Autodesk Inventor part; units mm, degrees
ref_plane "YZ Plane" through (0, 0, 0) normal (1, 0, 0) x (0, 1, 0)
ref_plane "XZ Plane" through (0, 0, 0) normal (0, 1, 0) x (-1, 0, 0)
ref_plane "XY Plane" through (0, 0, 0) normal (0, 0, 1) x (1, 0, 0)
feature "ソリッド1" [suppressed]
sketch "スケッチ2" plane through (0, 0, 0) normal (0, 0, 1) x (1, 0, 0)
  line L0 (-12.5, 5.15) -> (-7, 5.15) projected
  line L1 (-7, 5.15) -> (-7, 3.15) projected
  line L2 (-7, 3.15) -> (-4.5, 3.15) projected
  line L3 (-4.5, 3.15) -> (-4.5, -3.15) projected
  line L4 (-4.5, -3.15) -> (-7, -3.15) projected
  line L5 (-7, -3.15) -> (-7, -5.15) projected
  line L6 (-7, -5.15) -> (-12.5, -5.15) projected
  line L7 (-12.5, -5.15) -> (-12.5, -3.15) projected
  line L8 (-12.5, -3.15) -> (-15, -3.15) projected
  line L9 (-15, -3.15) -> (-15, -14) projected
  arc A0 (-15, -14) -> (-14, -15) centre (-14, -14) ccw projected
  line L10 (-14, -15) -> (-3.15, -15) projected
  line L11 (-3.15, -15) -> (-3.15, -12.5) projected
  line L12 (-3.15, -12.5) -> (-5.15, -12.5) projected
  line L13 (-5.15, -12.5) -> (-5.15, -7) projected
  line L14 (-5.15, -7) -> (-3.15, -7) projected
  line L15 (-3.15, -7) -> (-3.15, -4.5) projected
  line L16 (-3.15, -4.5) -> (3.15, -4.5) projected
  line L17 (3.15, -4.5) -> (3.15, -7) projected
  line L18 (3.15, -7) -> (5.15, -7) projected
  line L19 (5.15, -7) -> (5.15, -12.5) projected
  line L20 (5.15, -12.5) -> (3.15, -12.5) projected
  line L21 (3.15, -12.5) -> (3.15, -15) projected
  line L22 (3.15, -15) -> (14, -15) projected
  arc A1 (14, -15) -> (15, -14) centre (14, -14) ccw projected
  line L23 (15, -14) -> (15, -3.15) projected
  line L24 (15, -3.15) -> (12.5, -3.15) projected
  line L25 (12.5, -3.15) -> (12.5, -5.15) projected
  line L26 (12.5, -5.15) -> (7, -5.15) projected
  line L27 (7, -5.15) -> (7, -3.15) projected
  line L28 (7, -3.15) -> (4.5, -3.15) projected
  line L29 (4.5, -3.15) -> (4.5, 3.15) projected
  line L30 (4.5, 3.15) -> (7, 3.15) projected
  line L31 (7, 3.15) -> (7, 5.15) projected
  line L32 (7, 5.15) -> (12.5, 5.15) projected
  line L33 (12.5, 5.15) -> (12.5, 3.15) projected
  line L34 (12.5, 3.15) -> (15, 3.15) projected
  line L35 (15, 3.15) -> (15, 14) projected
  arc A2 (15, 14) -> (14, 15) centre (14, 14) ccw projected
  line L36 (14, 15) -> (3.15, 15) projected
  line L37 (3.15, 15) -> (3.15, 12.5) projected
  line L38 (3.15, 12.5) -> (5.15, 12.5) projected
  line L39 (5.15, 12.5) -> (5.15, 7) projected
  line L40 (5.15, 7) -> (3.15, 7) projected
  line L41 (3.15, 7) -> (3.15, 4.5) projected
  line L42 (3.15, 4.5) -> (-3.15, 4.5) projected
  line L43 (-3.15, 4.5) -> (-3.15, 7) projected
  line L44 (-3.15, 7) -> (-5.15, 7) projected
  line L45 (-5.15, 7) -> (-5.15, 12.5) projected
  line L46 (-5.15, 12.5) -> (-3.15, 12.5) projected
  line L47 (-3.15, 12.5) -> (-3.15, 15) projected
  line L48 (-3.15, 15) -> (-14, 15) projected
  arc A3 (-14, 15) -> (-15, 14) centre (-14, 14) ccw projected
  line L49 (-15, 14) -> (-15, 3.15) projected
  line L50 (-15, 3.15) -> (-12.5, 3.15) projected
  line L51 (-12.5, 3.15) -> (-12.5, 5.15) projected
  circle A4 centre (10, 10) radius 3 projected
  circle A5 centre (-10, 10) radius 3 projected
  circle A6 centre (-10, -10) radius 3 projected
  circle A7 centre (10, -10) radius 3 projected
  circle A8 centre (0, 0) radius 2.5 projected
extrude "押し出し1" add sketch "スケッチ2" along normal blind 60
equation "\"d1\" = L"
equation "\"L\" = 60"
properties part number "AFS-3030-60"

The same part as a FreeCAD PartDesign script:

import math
import FreeCAD as App
import Part
import Sketcher

doc = App.newDocument("Part")
params = doc.addObject("Spreadsheet::Sheet", "Params")
for row, (alias, value) in enumerate([
    ("sketch1_diameter", "6 mm"),
    ("sketch1_diameter2", "5 mm"),
    ("sketch1_radius", "1 mm"),
    ("sketch1_width", "2 mm"),
    ("sketch1_width2", "5.5 mm"),
    ("pad1_length", "60 mm"),
], start=1):
    params.set(f"A{row}", alias)
    params.set(f"B{row}", "=" + value)
    params.setAlias(f"B{row}", alias)

body = doc.addObject("PartDesign::Body", "Body")

sketch1 = body.newObject("Sketcher::SketchObject", "Sketch")
sketch1.AttachmentSupport = (doc.getObject("XY_Plane"), [""])
sketch1.MapMode = "FlatFace"
sketch1.addGeometry(Part.LineSegment(App.Vector(-12.5, 3.1, 0), App.Vector(-12.5, 5.2, 0)), False)
sketch1.addGeometry(Part.LineSegment(App.Vector(-12.5, 5.2, 0), App.Vector(-7, 5.2, 0)), False)
sketch1.addGeometry(Part.LineSegment(App.Vector(-7, 5.2, 0), App.Vector(-7, 3.1, 0)), False)
sketch1.addGeometry(Part.LineSegment(App.Vector(-7, 3.1, 0), App.Vector(-4.5, 3.1, 0)), False)
sketch1.addGeometry(Part.LineSegment(App.Vector(-4.5, 3.1, 0), App.Vector(-4.5, -3.1, 0)), False)
sketch1.addGeometry(Part.LineSegment(App.Vector(-4.5, -3.1, 0), App.Vector(-7, -3.1, 0)), False)
sketch1.addGeometry(Part.LineSegment(App.Vector(-7, -3.1, 0), App.Vector(-7, -5.2, 0)), False)
sketch1.addGeometry(Part.LineSegment(App.Vector(-7, -5.2, 0), App.Vector(-12.5, -5.2, 0)), False)
sketch1.addGeometry(Part.LineSegment(App.Vector(-12.5, -5.2, 0), App.Vector(-12.5, -3.1, 0)), False)
sketch1.addGeometry(Part.LineSegment(App.Vector(-12.5, -3.1, 0), App.Vector(-15, -3.1, 0)), False)
sketch1.addGeometry(Part.LineSegment(App.Vector(-15, -3.1, 0), App.Vector(-15, -14, 0)), False)
sketch1.addGeometry(Part.ArcOfCircle(Part.Circle(App.Vector(-14, -14, 0), App.Vector(0, 0, 1), 1), math.radians(180), math.radians(270)), False)
sketch1.addGeometry(Part.LineSegment(App.Vector(-14, -15, 0), App.Vector(-3.1, -15, 0)), False)
sketch1.addGeometry(Part.LineSegment(App.Vector(-3.1, -15, 0), App.Vector(-3.1, -12.5, 0)), False)
sketch1.addGeometry(Part.LineSegment(App.Vector(-3.1, -12.5, 0), App.Vector(-5.2, -12.5, 0)), False)
sketch1.addGeometry(Part.LineSegment(App.Vector(-5.2, -12.5, 0), App.Vector(-5.2, -7, 0)), False)
sketch1.addGeometry(Part.LineSegment(App.Vector(-5.2, -7, 0), App.Vector(-3.1, -7, 0)), False)
sketch1.addGeometry(Part.LineSegment(App.Vector(-3.1, -7, 0), App.Vector(-3.1, -4.5, 0)), False)
sketch1.addGeometry(Part.LineSegment(App.Vector(-3.1, -4.5, 0), App.Vector(3.1, -4.5, 0)), False)
sketch1.addGeometry(Part.LineSegment(App.Vector(3.1, -4.5, 0), App.Vector(3.1, -7, 0)), False)
sketch1.addGeometry(Part.LineSegment(App.Vector(3.1, -7, 0), App.Vector(5.2, -7, 0)), False)
sketch1.addGeometry(Part.LineSegment(App.Vector(5.2, -7, 0), App.Vector(5.2, -12.5, 0)), False)
sketch1.addGeometry(Part.LineSegment(App.Vector(5.2, -12.5, 0), App.Vector(3.1, -12.5, 0)), False)
sketch1.addGeometry(Part.LineSegment(App.Vector(3.1, -12.5, 0), App.Vector(3.1, -15, 0)), False)
sketch1.addGeometry(Part.LineSegment(App.Vector(3.1, -15, 0), App.Vector(14, -15, 0)), False)
sketch1.addGeometry(Part.ArcOfCircle(Part.Circle(App.Vector(14, -14, 0), App.Vector(0, 0, 1), 1), math.radians(-90), math.radians(0)), False)
sketch1.addGeometry(Part.LineSegment(App.Vector(15, -14, 0), App.Vector(15, -3.1, 0)), False)
sketch1.addGeometry(Part.LineSegment(App.Vector(15, -3.1, 0), App.Vector(12.5, -3.1, 0)), False)
sketch1.addGeometry(Part.LineSegment(App.Vector(12.5, -3.1, 0), App.Vector(12.5, -5.2, 0)), False)
sketch1.addGeometry(Part.LineSegment(App.Vector(12.5, -5.2, 0), App.Vector(7, -5.2, 0)), False)
sketch1.addGeometry(Part.LineSegment(App.Vector(7, -5.2, 0), App.Vector(7, -3.1, 0)), False)
sketch1.addGeometry(Part.LineSegment(App.Vector(7, -3.1, 0), App.Vector(4.5, -3.1, 0)), False)
sketch1.addGeometry(Part.LineSegment(App.Vector(4.5, -3.1, 0), App.Vector(4.5, 3.1, 0)), False)
sketch1.addGeometry(Part.LineSegment(App.Vector(4.5, 3.1, 0), App.Vector(7, 3.1, 0)), False)
sketch1.addGeometry(Part.LineSegment(App.Vector(7, 3.1, 0), App.Vector(7, 5.2, 0)), False)
sketch1.addGeometry(Part.LineSegment(App.Vector(7, 5.2, 0), App.Vector(12.5, 5.2, 0)), False)
sketch1.addGeometry(Part.LineSegment(App.Vector(12.5, 5.2, 0), App.Vector(12.5, 3.1, 0)), False)
sketch1.addGeometry(Part.LineSegment(App.Vector(12.5, 3.1, 0), App.Vector(15, 3.1, 0)), False)
sketch1.addGeometry(Part.LineSegment(App.Vector(15, 3.1, 0), App.Vector(15, 14, 0)), False)
sketch1.addGeometry(Part.ArcOfCircle(Part.Circle(App.Vector(14, 14, 0), App.Vector(0, 0, 1), 1), math.radians(0), math.radians(90)), False)
sketch1.addGeometry(Part.LineSegment(App.Vector(14, 15, 0), App.Vector(3.1, 15, 0)), False)
sketch1.addGeometry(Part.LineSegment(App.Vector(3.1, 15, 0), App.Vector(3.1, 12.5, 0)), False)
sketch1.addGeometry(Part.LineSegment(App.Vector(3.1, 12.5, 0), App.Vector(5.2, 12.5, 0)), False)
sketch1.addGeometry(Part.LineSegment(App.Vector(5.2, 12.5, 0), App.Vector(5.2, 7, 0)), False)
sketch1.addGeometry(Part.LineSegment(App.Vector(5.2, 7, 0), App.Vector(3.1, 7, 0)), False)
sketch1.addGeometry(Part.LineSegment(App.Vector(3.1, 7, 0), App.Vector(3.1, 4.5, 0)), False)
sketch1.addGeometry(Part.LineSegment(App.Vector(3.1, 4.5, 0), App.Vector(-3.1, 4.5, 0)), False)
sketch1.addGeometry(Part.LineSegment(App.Vector(-3.1, 4.5, 0), App.Vector(-3.1, 7, 0)), False)
sketch1.addGeometry(Part.LineSegment(App.Vector(-3.1, 7, 0), App.Vector(-5.2, 7, 0)), False)
sketch1.addGeometry(Part.LineSegment(App.Vector(-5.2, 7, 0), App.Vector(-5.2, 12.5, 0)), False)
sketch1.addGeometry(Part.LineSegment(App.Vector(-5.2, 12.5, 0), App.Vector(-3.1, 12.5, 0)), False)
sketch1.addGeometry(Part.LineSegment(App.Vector(-3.1, 12.5, 0), App.Vector(-3.1, 15, 0)), False)
sketch1.addGeometry(Part.LineSegment(App.Vector(-3.1, 15, 0), App.Vector(-14, 15, 0)), False)
sketch1.addGeometry(Part.ArcOfCircle(Part.Circle(App.Vector(-14, 14, 0), App.Vector(0, 0, 1), 1), math.radians(90), math.radians(180)), False)
sketch1.addGeometry(Part.LineSegment(App.Vector(-15, 14, 0), App.Vector(-15, 3.1, 0)), False)
sketch1.addGeometry(Part.LineSegment(App.Vector(-15, 3.1, 0), App.Vector(-12.5, 3.1, 0)), False)
sketch1.addGeometry(Part.Circle(App.Vector(-10, -10, 0), App.Vector(0, 0, 1), 3), False)
sketch1.addGeometry(Part.Circle(App.Vector(10, -10, 0), App.Vector(0, 0, 1), 3), False)
sketch1.addGeometry(Part.Circle(App.Vector(-10, 10, 0), App.Vector(0, 0, 1), 3), False)
sketch1.addGeometry(Part.Circle(App.Vector(0, 0, 0), App.Vector(0, 0, 1), 2.5), False)
sketch1.addGeometry(Part.Circle(App.Vector(10, 10, 0), App.Vector(0, 0, 1), 3), False)
sketch1.addConstraint(Sketcher.Constraint("Coincident", 0, 2, 1, 1))
sketch1.addConstraint(Sketcher.Constraint("Coincident", 1, 2, 2, 1))
sketch1.addConstraint(Sketcher.Constraint("Coincident", 2, 2, 3, 1))
sketch1.addConstraint(Sketcher.Constraint("Coincident", 3, 2, 4, 1))
sketch1.addConstraint(Sketcher.Constraint("Coincident", 4, 2, 5, 1))
sketch1.addConstraint(Sketcher.Constraint("Coincident", 5, 2, 6, 1))
sketch1.addConstraint(Sketcher.Constraint("Coincident", 6, 2, 7, 1))
sketch1.addConstraint(Sketcher.Constraint("Coincident", 7, 2, 8, 1))
sketch1.addConstraint(Sketcher.Constraint("Coincident", 8, 2, 9, 1))
sketch1.addConstraint(Sketcher.Constraint("Coincident", 9, 2, 10, 1))
sketch1.addConstraint(Sketcher.Constraint("Tangent", 10, 2, 11, 1))
sketch1.addConstraint(Sketcher.Constraint("Tangent", 11, 2, 12, 1))
sketch1.addConstraint(Sketcher.Constraint("Coincident", 12, 2, 13, 1))
sketch1.addConstraint(Sketcher.Constraint("Coincident", 13, 2, 14, 1))
sketch1.addConstraint(Sketcher.Constraint("Coincident", 14, 2, 15, 1))
sketch1.addConstraint(Sketcher.Constraint("Coincident", 15, 2, 16, 1))
sketch1.addConstraint(Sketcher.Constraint("Coincident", 16, 2, 17, 1))
sketch1.addConstraint(Sketcher.Constraint("Coincident", 17, 2, 18, 1))
sketch1.addConstraint(Sketcher.Constraint("Coincident", 18, 2, 19, 1))
sketch1.addConstraint(Sketcher.Constraint("Coincident", 19, 2, 20, 1))
sketch1.addConstraint(Sketcher.Constraint("Coincident", 20, 2, 21, 1))
sketch1.addConstraint(Sketcher.Constraint("Coincident", 21, 2, 22, 1))
sketch1.addConstraint(Sketcher.Constraint("Coincident", 22, 2, 23, 1))
sketch1.addConstraint(Sketcher.Constraint("Coincident", 23, 2, 24, 1))
sketch1.addConstraint(Sketcher.Constraint("Tangent", 24, 2, 25, 1))
sketch1.addConstraint(Sketcher.Constraint("Tangent", 25, 2, 26, 1))
sketch1.addConstraint(Sketcher.Constraint("Coincident", 26, 2, 27, 1))
sketch1.addConstraint(Sketcher.Constraint("Coincident", 27, 2, 28, 1))
sketch1.addConstraint(Sketcher.Constraint("Coincident", 28, 2, 29, 1))
sketch1.addConstraint(Sketcher.Constraint("Coincident", 29, 2, 30, 1))
sketch1.addConstraint(Sketcher.Constraint("Coincident", 30, 2, 31, 1))
sketch1.addConstraint(Sketcher.Constraint("Coincident", 31, 2, 32, 1))
sketch1.addConstraint(Sketcher.Constraint("Coincident", 32, 2, 33, 1))
sketch1.addConstraint(Sketcher.Constraint("Coincident", 33, 2, 34, 1))
sketch1.addConstraint(Sketcher.Constraint("Coincident", 34, 2, 35, 1))
sketch1.addConstraint(Sketcher.Constraint("Coincident", 35, 2, 36, 1))
sketch1.addConstraint(Sketcher.Constraint("Coincident", 36, 2, 37, 1))
sketch1.addConstraint(Sketcher.Constraint("Coincident", 37, 2, 38, 1))
sketch1.addConstraint(Sketcher.Constraint("Tangent", 38, 2, 39, 1))
sketch1.addConstraint(Sketcher.Constraint("Tangent", 39, 2, 40, 1))
sketch1.addConstraint(Sketcher.Constraint("Coincident", 40, 2, 41, 1))
sketch1.addConstraint(Sketcher.Constraint("Coincident", 41, 2, 42, 1))
sketch1.addConstraint(Sketcher.Constraint("Coincident", 42, 2, 43, 1))
sketch1.addConstraint(Sketcher.Constraint("Coincident", 43, 2, 44, 1))
sketch1.addConstraint(Sketcher.Constraint("Coincident", 44, 2, 45, 1))
sketch1.addConstraint(Sketcher.Constraint("Coincident", 45, 2, 46, 1))
sketch1.addConstraint(Sketcher.Constraint("Coincident", 46, 2, 47, 1))
sketch1.addConstraint(Sketcher.Constraint("Coincident", 47, 2, 48, 1))
sketch1.addConstraint(Sketcher.Constraint("Coincident", 48, 2, 49, 1))
sketch1.addConstraint(Sketcher.Constraint("Coincident", 49, 2, 50, 1))
sketch1.addConstraint(Sketcher.Constraint("Coincident", 50, 2, 51, 1))
sketch1.addConstraint(Sketcher.Constraint("Coincident", 51, 2, 52, 1))
sketch1.addConstraint(Sketcher.Constraint("Tangent", 52, 2, 53, 1))
sketch1.addConstraint(Sketcher.Constraint("Tangent", 53, 2, 54, 1))
sketch1.addConstraint(Sketcher.Constraint("Coincident", 54, 2, 55, 1))
sketch1.addConstraint(Sketcher.Constraint("Coincident", 55, 2, 0, 1))
sketch1.addConstraint(Sketcher.Constraint("Vertical", 0))
sketch1.addConstraint(Sketcher.Constraint("Horizontal", 1))
sketch1.addConstraint(Sketcher.Constraint("Vertical", 2))
sketch1.addConstraint(Sketcher.Constraint("Horizontal", 3))
sketch1.addConstraint(Sketcher.Constraint("Vertical", 4))
sketch1.addConstraint(Sketcher.Constraint("Horizontal", 5))
sketch1.addConstraint(Sketcher.Constraint("Vertical", 6))
sketch1.addConstraint(Sketcher.Constraint("Horizontal", 7))
sketch1.addConstraint(Sketcher.Constraint("Vertical", 8))
sketch1.addConstraint(Sketcher.Constraint("Horizontal", 9))
sketch1.addConstraint(Sketcher.Constraint("Vertical", 10))
sketch1.addConstraint(Sketcher.Constraint("Horizontal", 12))
sketch1.addConstraint(Sketcher.Constraint("Vertical", 13))
sketch1.addConstraint(Sketcher.Constraint("Horizontal", 14))
sketch1.addConstraint(Sketcher.Constraint("Vertical", 15))
sketch1.addConstraint(Sketcher.Constraint("Horizontal", 16))
sketch1.addConstraint(Sketcher.Constraint("Vertical", 17))
sketch1.addConstraint(Sketcher.Constraint("Horizontal", 18))
sketch1.addConstraint(Sketcher.Constraint("Vertical", 19))
sketch1.addConstraint(Sketcher.Constraint("Horizontal", 20))
sketch1.addConstraint(Sketcher.Constraint("Vertical", 21))
sketch1.addConstraint(Sketcher.Constraint("Horizontal", 22))
sketch1.addConstraint(Sketcher.Constraint("Vertical", 23))
sketch1.addConstraint(Sketcher.Constraint("Horizontal", 24))
sketch1.addConstraint(Sketcher.Constraint("Vertical", 26))
sketch1.addConstraint(Sketcher.Constraint("Horizontal", 27))
sketch1.addConstraint(Sketcher.Constraint("Vertical", 28))
sketch1.addConstraint(Sketcher.Constraint("Horizontal", 29))
sketch1.addConstraint(Sketcher.Constraint("Vertical", 30))
sketch1.addConstraint(Sketcher.Constraint("Horizontal", 31))
sketch1.addConstraint(Sketcher.Constraint("Vertical", 32))
sketch1.addConstraint(Sketcher.Constraint("Horizontal", 33))
sketch1.addConstraint(Sketcher.Constraint("Vertical", 34))
sketch1.addConstraint(Sketcher.Constraint("Horizontal", 35))
sketch1.addConstraint(Sketcher.Constraint("Vertical", 36))
sketch1.addConstraint(Sketcher.Constraint("Horizontal", 37))
sketch1.addConstraint(Sketcher.Constraint("Vertical", 38))
sketch1.addConstraint(Sketcher.Constraint("Horizontal", 40))
sketch1.addConstraint(Sketcher.Constraint("Vertical", 41))
sketch1.addConstraint(Sketcher.Constraint("Horizontal", 42))
sketch1.addConstraint(Sketcher.Constraint("Vertical", 43))
sketch1.addConstraint(Sketcher.Constraint("Horizontal", 44))
sketch1.addConstraint(Sketcher.Constraint("Vertical", 45))
sketch1.addConstraint(Sketcher.Constraint("Horizontal", 46))
sketch1.addConstraint(Sketcher.Constraint("Vertical", 47))
sketch1.addConstraint(Sketcher.Constraint("Horizontal", 48))
sketch1.addConstraint(Sketcher.Constraint("Vertical", 49))
sketch1.addConstraint(Sketcher.Constraint("Horizontal", 50))
sketch1.addConstraint(Sketcher.Constraint("Vertical", 51))
sketch1.addConstraint(Sketcher.Constraint("Horizontal", 52))
sketch1.addConstraint(Sketcher.Constraint("Vertical", 54))
sketch1.addConstraint(Sketcher.Constraint("Horizontal", 55))
sketch1.addConstraint(Sketcher.Constraint("Coincident", 59, 3, -1, 1))
sketch1.addConstraint(Sketcher.Constraint("Equal", 11, 25))
sketch1.addConstraint(Sketcher.Constraint("Equal", 25, 39))
sketch1.addConstraint(Sketcher.Constraint("Equal", 39, 53))
sketch1.addConstraint(Sketcher.Constraint("Equal", 56, 57))
sketch1.addConstraint(Sketcher.Constraint("Equal", 57, 58))
sketch1.addConstraint(Sketcher.Constraint("Equal", 58, 60))
sketch1.addConstraint(Sketcher.Constraint("Symmetric", 11, 3, 39, 3, -1, 1))
sketch1.addConstraint(Sketcher.Constraint("Symmetric", 25, 3, 53, 3, -1, 1))
sketch1.addConstraint(Sketcher.Constraint("Symmetric", 57, 3, 58, 3, -1, 1))
sketch1.addConstraint(Sketcher.Constraint("Symmetric", 56, 3, 60, 3, -1, 1))
sketch1.addConstraint(Sketcher.Constraint("Symmetric", 0, 2, 28, 2, -1, 1))
sketch1.addConstraint(Sketcher.Constraint("Symmetric", 2, 2, 30, 2, -1, 1))
sketch1.addConstraint(Sketcher.Constraint("Symmetric", 4, 2, 32, 2, -1, 1))
sketch1.addConstraint(Sketcher.Constraint("Symmetric", 6, 2, 34, 2, -1, 1))
sketch1.addConstraint(Sketcher.Constraint("Symmetric", 8, 2, 36, 2, -1, 1))
sketch1.addConstraint(Sketcher.Constraint("Symmetric", 13, 2, 41, 2, -1, 1))
sketch1.addConstraint(Sketcher.Constraint("Symmetric", 15, 2, 43, 2, -1, 1))
sketch1.addConstraint(Sketcher.Constraint("Symmetric", 17, 2, 45, 2, -1, 1))
sketch1.addConstraint(Sketcher.Constraint("Symmetric", 19, 2, 47, 2, -1, 1))
sketch1.addConstraint(Sketcher.Constraint("Symmetric", 21, 2, 49, 2, -1, 1))
sketch1.addConstraint(Sketcher.Constraint("Symmetric", 11, 3, 25, 3, -2))
sketch1.addConstraint(Sketcher.Constraint("Symmetric", 56, 3, 57, 3, -2))
sketch1.addConstraint(Sketcher.Constraint("Symmetric", 16, 2, 19, 2, -2))
sketch1.addConstraint(Sketcher.Constraint("Symmetric", 14, 2, 21, 2, -2))
sketch1.addConstraint(Sketcher.Constraint("Symmetric", 8, 2, 27, 2, -2))
sketch1.addConstraint(Sketcher.Constraint("Symmetric", 6, 2, 29, 2, -2))
sketch1.addConstraint(Sketcher.Constraint("Horizontal", 5, 2, 8, 2))
sketch1.addConstraint(Sketcher.Constraint("Horizontal", 27, 2, 30, 2))
sketch1.addConstraint(Sketcher.Constraint("Horizontal", 37, 2, 54, 2))
sketch1.addConstraint(Sketcher.Constraint("Vertical", 13, 2, 16, 2))
sketch1.addConstraint(Sketcher.Constraint("Vertical", 19, 2, 22, 2))
sketch1.addConstraint(Sketcher.Constraint("Vertical", 47, 2, 50, 2))
sketch1.addConstraint(Sketcher.Constraint("Equal", 5, 9))
sketch1.addConstraint(Sketcher.Constraint("Equal", 50, 0))
sketch1.addConstraint(Sketcher.Constraint("Equal", 46, 4))
sketch1.addConstraint(Sketcher.Constraint("Equal", 52, 10))
sketch1.addConstraint(Sketcher.Constraint("Equal", 55, 13))
sketch1.addConstraint(Sketcher.Constraint("Equal", 35, 15))
sketch1.addConstraint(Sketcher.Constraint("Equal", 13, 17))
sketch1.addConstraint(Sketcher.Constraint("Diameter", 56, 6.0))
sketch1.addConstraint(Sketcher.Constraint("Diameter", 59, 5.0))
sketch1.addConstraint(Sketcher.Constraint("Radius", 11, 1.0))
sketch1.addConstraint(Sketcher.Constraint("DistanceX", 14, 2, 14, 1, 2.0))
sketch1.addConstraint(Sketcher.Constraint("DistanceX", 1, 1, 1, 2, 5.5))
sketch1.addConstraint(Sketcher.Constraint("DistanceX", 3, 1, 3, 2, 2.5))
sketch1.addConstraint(Sketcher.Constraint("DistanceX", 18, 1, 18, 2, 6.3))
sketch1.addConstraint(Sketcher.Constraint("DistanceX", 11, 3, -1, 1, 14.0))
sketch1.addConstraint(Sketcher.Constraint("DistanceX", 56, 3, -1, 1, 10.0))
sketch1.addConstraint(Sketcher.Constraint("DistanceY", 56, 3, -1, 1, 10.0))
sketch1.setExpression("Constraints[148]", "Params.sketch1_diameter")
sketch1.setExpression("Constraints[149]", "Params.sketch1_diameter2")
sketch1.setExpression("Constraints[150]", "Params.sketch1_radius")
sketch1.setExpression("Constraints[151]", "Params.sketch1_width")
sketch1.setExpression("Constraints[152]", "Params.sketch1_width2")
pad1 = body.newObject("PartDesign::Pad", "Pad")
pad1.Profile = sketch1
pad1.setExpression("Length", "Params.pad1_length")

doc.recompute()
